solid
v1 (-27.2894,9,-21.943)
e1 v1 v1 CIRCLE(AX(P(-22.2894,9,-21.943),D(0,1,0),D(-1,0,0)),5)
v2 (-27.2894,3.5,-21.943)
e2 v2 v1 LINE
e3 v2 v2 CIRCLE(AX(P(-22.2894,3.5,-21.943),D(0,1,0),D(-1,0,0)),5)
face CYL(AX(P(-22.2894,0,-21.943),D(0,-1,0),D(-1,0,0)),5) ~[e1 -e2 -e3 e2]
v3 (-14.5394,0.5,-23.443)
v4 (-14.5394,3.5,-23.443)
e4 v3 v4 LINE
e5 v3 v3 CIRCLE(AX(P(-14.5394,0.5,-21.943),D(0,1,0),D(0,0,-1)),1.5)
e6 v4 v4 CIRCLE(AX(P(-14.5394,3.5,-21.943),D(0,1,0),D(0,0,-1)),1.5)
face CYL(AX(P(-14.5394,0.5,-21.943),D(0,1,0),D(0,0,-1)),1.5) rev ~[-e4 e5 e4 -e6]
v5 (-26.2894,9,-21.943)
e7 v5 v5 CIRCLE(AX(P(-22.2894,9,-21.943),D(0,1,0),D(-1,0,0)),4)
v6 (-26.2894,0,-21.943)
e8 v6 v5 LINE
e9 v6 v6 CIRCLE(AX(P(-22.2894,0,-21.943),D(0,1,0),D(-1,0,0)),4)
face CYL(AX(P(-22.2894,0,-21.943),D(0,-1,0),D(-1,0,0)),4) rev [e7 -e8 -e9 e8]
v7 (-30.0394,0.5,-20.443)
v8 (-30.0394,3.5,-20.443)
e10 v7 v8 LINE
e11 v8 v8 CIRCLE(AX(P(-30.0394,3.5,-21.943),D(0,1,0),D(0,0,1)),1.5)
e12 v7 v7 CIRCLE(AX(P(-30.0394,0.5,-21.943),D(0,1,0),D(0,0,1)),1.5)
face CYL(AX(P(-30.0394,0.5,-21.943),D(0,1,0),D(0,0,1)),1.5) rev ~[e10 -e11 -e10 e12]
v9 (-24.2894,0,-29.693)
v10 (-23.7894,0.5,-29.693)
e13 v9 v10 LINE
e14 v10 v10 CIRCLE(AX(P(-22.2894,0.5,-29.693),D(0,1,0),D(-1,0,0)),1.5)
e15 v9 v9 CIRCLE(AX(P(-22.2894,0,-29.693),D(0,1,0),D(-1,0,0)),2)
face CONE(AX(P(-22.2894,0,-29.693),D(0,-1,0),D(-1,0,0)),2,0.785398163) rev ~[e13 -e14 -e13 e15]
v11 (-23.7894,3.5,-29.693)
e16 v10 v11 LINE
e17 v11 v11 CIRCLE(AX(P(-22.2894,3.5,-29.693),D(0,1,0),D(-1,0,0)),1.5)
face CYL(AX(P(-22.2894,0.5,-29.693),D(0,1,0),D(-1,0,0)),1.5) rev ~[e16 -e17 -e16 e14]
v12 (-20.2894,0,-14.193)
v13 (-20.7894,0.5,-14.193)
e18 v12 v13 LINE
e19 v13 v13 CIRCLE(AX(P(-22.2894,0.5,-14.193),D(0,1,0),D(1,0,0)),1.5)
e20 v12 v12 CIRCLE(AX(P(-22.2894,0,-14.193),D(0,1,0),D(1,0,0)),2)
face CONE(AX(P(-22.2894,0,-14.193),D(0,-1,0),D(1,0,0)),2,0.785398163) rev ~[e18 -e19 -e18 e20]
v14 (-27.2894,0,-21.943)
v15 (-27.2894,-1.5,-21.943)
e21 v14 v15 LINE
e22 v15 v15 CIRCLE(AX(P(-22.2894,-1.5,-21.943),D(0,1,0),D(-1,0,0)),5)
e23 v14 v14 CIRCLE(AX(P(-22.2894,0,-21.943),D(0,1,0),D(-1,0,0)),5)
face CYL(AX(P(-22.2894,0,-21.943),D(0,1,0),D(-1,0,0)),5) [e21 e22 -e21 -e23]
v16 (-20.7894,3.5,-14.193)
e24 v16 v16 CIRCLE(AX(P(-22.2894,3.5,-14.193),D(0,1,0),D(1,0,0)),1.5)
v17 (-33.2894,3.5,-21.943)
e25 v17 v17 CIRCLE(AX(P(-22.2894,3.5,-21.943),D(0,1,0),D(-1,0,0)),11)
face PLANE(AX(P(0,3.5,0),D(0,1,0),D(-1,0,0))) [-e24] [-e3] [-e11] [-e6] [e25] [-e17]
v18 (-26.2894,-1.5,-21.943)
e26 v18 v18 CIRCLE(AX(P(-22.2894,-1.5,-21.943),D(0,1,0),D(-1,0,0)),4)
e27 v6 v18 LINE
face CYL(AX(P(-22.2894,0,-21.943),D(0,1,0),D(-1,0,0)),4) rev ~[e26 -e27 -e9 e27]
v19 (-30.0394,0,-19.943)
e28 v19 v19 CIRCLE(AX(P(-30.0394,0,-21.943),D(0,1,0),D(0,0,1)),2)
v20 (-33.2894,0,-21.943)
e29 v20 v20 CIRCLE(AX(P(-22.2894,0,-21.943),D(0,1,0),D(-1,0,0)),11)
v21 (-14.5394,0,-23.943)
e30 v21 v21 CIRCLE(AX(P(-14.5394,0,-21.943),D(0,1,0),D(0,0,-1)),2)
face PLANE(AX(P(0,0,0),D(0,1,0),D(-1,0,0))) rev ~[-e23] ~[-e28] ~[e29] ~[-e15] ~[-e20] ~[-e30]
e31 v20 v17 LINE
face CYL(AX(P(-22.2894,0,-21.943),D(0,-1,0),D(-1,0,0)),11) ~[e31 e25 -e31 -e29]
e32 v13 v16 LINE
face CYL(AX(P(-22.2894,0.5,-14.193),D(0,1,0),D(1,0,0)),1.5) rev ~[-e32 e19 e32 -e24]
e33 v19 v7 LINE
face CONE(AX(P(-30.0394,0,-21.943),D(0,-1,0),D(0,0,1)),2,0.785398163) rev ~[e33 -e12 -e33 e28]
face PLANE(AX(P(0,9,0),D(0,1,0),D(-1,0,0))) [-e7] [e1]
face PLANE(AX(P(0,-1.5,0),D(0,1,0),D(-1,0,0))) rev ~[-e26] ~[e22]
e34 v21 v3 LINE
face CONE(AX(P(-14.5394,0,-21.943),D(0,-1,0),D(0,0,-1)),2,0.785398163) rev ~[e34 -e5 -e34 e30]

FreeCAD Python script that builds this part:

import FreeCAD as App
import Part
import Sketcher

V = App.Vector
Q = App.Units.Quantity

doc = App.newDocument("Part")
body = doc.addObject("PartDesign::Body", "Body")

# Sketch on XZ plane
sketch1 = doc.addObject("Sketcher::SketchObject", "Sketch")
body.addObject(sketch1)
sketch1.AttachmentSupport = (doc.XZ_Plane, [""])
sketch1.MapMode = "FlatFace"
sketch1.addGeometry([
    Part.Circle(V(-22, -22, 0), V(0, 0, 1), 11),
    Part.Circle(V(-22, -22, 0), V(0, 0, 1), 5),
], False)
sketch1.addConstraint([
    Sketcher.Constraint("Coincident", 1, 3, 0, 3),
    Sketcher.Constraint("Diameter", 0, Q("22 mm")),
    Sketcher.Constraint("Diameter", 1, Q("10 mm")),
    Sketcher.Constraint("DistanceY", 0, 3, -1, 1, Q("21.943 mm")),
    Sketcher.Constraint("DistanceX", 0, 3, -1, 1, Q("22.2894 mm")),
])
pad1 = doc.addObject("PartDesign::Pad", "Pad")
body.addObject(pad1)
pad1.Profile = sketch1
pad1.Length = 3.5
pad1.Reversed = True

# Sketch on XZ plane
sketch2 = doc.addObject("Sketcher::SketchObject", "Sketch001")
body.addObject(sketch2)
sketch2.AttachmentSupport = (doc.XZ_Plane, [""])
sketch2.MapMode = "FlatFace"
sketch2.addGeometry(Part.Circle(V(-14.5, -21.9, 0), V(0, 0, 1), 1.5), False)
sketch2.addConstraint([
    Sketcher.Constraint("Diameter", 0, Q("3 mm")),
    Sketcher.Constraint("DistanceY", 0, 3, -1, 1, Q("21.943 mm")),
    Sketcher.Constraint("DistanceX", 0, 3, -1, 1, Q("14.5394 mm")),
])
doc.recompute()
hole = doc.addObject("PartDesign::Hole", "Hole")
body.addObject(hole)
hole.Profile = sketch2
hole.ThreadType = "None"
hole.Diameter = 3
hole.DepthType = "ThroughAll"
hole.HoleCutType = "Countersink"
hole.HoleCutDiameter = 4
hole.HoleCutCountersinkAngle = 90
doc.recompute()

datumline = doc.addObject("PartDesign::Line", "DatumLine")
body.addObject(datumline)
datumline.Placement = App.Placement(V(-22.2894, 0, -21.943), App.Rotation(V(0, 0, 1), V(0, 1, 0)))
polarpattern = doc.addObject("PartDesign::PolarPattern", "PolarPattern")
body.addObject(polarpattern)
polarpattern.Originals = [hole]
polarpattern.Axis = (datumline, [""])
polarpattern.Angle = 360
polarpattern.Occurrences = 4
body.Tip = polarpattern

# Sketch on XZ plane
sketch3 = doc.addObject("Sketcher::SketchObject", "Sketch002")
body.addObject(sketch3)
sketch3.AttachmentSupport = (doc.XZ_Plane, [""])
sketch3.MapMode = "FlatFace"
sketch3.addGeometry([
    Part.Circle(V(-22.3, -21.9, 0), V(0, 0, 1), 5),
    Part.Circle(V(-22.3, -21.9, 0), V(0, 0, 1), 4),
], False)
sketch3.addConstraint([
    Sketcher.Constraint("Coincident", 1, 3, 0, 3),
    Sketcher.Constraint("Diameter", 0, Q("10 mm")),
    Sketcher.Constraint("Diameter", 1, Q("8 mm")),
    Sketcher.Constraint("DistanceY", 0, 3, -1, 1, Q("21.943 mm")),
    Sketcher.Constraint("DistanceX", 0, 3, -1, 1, Q("22.2894 mm")),
])
pad2 = doc.addObject("PartDesign::Pad", "Pad001")
body.addObject(pad2)
pad2.Profile = sketch3
pad2.Type = "TwoLengths"
pad2.Length = 9
pad2.Length2 = 1.5
pad2.Reversed = True

doc.recompute()
